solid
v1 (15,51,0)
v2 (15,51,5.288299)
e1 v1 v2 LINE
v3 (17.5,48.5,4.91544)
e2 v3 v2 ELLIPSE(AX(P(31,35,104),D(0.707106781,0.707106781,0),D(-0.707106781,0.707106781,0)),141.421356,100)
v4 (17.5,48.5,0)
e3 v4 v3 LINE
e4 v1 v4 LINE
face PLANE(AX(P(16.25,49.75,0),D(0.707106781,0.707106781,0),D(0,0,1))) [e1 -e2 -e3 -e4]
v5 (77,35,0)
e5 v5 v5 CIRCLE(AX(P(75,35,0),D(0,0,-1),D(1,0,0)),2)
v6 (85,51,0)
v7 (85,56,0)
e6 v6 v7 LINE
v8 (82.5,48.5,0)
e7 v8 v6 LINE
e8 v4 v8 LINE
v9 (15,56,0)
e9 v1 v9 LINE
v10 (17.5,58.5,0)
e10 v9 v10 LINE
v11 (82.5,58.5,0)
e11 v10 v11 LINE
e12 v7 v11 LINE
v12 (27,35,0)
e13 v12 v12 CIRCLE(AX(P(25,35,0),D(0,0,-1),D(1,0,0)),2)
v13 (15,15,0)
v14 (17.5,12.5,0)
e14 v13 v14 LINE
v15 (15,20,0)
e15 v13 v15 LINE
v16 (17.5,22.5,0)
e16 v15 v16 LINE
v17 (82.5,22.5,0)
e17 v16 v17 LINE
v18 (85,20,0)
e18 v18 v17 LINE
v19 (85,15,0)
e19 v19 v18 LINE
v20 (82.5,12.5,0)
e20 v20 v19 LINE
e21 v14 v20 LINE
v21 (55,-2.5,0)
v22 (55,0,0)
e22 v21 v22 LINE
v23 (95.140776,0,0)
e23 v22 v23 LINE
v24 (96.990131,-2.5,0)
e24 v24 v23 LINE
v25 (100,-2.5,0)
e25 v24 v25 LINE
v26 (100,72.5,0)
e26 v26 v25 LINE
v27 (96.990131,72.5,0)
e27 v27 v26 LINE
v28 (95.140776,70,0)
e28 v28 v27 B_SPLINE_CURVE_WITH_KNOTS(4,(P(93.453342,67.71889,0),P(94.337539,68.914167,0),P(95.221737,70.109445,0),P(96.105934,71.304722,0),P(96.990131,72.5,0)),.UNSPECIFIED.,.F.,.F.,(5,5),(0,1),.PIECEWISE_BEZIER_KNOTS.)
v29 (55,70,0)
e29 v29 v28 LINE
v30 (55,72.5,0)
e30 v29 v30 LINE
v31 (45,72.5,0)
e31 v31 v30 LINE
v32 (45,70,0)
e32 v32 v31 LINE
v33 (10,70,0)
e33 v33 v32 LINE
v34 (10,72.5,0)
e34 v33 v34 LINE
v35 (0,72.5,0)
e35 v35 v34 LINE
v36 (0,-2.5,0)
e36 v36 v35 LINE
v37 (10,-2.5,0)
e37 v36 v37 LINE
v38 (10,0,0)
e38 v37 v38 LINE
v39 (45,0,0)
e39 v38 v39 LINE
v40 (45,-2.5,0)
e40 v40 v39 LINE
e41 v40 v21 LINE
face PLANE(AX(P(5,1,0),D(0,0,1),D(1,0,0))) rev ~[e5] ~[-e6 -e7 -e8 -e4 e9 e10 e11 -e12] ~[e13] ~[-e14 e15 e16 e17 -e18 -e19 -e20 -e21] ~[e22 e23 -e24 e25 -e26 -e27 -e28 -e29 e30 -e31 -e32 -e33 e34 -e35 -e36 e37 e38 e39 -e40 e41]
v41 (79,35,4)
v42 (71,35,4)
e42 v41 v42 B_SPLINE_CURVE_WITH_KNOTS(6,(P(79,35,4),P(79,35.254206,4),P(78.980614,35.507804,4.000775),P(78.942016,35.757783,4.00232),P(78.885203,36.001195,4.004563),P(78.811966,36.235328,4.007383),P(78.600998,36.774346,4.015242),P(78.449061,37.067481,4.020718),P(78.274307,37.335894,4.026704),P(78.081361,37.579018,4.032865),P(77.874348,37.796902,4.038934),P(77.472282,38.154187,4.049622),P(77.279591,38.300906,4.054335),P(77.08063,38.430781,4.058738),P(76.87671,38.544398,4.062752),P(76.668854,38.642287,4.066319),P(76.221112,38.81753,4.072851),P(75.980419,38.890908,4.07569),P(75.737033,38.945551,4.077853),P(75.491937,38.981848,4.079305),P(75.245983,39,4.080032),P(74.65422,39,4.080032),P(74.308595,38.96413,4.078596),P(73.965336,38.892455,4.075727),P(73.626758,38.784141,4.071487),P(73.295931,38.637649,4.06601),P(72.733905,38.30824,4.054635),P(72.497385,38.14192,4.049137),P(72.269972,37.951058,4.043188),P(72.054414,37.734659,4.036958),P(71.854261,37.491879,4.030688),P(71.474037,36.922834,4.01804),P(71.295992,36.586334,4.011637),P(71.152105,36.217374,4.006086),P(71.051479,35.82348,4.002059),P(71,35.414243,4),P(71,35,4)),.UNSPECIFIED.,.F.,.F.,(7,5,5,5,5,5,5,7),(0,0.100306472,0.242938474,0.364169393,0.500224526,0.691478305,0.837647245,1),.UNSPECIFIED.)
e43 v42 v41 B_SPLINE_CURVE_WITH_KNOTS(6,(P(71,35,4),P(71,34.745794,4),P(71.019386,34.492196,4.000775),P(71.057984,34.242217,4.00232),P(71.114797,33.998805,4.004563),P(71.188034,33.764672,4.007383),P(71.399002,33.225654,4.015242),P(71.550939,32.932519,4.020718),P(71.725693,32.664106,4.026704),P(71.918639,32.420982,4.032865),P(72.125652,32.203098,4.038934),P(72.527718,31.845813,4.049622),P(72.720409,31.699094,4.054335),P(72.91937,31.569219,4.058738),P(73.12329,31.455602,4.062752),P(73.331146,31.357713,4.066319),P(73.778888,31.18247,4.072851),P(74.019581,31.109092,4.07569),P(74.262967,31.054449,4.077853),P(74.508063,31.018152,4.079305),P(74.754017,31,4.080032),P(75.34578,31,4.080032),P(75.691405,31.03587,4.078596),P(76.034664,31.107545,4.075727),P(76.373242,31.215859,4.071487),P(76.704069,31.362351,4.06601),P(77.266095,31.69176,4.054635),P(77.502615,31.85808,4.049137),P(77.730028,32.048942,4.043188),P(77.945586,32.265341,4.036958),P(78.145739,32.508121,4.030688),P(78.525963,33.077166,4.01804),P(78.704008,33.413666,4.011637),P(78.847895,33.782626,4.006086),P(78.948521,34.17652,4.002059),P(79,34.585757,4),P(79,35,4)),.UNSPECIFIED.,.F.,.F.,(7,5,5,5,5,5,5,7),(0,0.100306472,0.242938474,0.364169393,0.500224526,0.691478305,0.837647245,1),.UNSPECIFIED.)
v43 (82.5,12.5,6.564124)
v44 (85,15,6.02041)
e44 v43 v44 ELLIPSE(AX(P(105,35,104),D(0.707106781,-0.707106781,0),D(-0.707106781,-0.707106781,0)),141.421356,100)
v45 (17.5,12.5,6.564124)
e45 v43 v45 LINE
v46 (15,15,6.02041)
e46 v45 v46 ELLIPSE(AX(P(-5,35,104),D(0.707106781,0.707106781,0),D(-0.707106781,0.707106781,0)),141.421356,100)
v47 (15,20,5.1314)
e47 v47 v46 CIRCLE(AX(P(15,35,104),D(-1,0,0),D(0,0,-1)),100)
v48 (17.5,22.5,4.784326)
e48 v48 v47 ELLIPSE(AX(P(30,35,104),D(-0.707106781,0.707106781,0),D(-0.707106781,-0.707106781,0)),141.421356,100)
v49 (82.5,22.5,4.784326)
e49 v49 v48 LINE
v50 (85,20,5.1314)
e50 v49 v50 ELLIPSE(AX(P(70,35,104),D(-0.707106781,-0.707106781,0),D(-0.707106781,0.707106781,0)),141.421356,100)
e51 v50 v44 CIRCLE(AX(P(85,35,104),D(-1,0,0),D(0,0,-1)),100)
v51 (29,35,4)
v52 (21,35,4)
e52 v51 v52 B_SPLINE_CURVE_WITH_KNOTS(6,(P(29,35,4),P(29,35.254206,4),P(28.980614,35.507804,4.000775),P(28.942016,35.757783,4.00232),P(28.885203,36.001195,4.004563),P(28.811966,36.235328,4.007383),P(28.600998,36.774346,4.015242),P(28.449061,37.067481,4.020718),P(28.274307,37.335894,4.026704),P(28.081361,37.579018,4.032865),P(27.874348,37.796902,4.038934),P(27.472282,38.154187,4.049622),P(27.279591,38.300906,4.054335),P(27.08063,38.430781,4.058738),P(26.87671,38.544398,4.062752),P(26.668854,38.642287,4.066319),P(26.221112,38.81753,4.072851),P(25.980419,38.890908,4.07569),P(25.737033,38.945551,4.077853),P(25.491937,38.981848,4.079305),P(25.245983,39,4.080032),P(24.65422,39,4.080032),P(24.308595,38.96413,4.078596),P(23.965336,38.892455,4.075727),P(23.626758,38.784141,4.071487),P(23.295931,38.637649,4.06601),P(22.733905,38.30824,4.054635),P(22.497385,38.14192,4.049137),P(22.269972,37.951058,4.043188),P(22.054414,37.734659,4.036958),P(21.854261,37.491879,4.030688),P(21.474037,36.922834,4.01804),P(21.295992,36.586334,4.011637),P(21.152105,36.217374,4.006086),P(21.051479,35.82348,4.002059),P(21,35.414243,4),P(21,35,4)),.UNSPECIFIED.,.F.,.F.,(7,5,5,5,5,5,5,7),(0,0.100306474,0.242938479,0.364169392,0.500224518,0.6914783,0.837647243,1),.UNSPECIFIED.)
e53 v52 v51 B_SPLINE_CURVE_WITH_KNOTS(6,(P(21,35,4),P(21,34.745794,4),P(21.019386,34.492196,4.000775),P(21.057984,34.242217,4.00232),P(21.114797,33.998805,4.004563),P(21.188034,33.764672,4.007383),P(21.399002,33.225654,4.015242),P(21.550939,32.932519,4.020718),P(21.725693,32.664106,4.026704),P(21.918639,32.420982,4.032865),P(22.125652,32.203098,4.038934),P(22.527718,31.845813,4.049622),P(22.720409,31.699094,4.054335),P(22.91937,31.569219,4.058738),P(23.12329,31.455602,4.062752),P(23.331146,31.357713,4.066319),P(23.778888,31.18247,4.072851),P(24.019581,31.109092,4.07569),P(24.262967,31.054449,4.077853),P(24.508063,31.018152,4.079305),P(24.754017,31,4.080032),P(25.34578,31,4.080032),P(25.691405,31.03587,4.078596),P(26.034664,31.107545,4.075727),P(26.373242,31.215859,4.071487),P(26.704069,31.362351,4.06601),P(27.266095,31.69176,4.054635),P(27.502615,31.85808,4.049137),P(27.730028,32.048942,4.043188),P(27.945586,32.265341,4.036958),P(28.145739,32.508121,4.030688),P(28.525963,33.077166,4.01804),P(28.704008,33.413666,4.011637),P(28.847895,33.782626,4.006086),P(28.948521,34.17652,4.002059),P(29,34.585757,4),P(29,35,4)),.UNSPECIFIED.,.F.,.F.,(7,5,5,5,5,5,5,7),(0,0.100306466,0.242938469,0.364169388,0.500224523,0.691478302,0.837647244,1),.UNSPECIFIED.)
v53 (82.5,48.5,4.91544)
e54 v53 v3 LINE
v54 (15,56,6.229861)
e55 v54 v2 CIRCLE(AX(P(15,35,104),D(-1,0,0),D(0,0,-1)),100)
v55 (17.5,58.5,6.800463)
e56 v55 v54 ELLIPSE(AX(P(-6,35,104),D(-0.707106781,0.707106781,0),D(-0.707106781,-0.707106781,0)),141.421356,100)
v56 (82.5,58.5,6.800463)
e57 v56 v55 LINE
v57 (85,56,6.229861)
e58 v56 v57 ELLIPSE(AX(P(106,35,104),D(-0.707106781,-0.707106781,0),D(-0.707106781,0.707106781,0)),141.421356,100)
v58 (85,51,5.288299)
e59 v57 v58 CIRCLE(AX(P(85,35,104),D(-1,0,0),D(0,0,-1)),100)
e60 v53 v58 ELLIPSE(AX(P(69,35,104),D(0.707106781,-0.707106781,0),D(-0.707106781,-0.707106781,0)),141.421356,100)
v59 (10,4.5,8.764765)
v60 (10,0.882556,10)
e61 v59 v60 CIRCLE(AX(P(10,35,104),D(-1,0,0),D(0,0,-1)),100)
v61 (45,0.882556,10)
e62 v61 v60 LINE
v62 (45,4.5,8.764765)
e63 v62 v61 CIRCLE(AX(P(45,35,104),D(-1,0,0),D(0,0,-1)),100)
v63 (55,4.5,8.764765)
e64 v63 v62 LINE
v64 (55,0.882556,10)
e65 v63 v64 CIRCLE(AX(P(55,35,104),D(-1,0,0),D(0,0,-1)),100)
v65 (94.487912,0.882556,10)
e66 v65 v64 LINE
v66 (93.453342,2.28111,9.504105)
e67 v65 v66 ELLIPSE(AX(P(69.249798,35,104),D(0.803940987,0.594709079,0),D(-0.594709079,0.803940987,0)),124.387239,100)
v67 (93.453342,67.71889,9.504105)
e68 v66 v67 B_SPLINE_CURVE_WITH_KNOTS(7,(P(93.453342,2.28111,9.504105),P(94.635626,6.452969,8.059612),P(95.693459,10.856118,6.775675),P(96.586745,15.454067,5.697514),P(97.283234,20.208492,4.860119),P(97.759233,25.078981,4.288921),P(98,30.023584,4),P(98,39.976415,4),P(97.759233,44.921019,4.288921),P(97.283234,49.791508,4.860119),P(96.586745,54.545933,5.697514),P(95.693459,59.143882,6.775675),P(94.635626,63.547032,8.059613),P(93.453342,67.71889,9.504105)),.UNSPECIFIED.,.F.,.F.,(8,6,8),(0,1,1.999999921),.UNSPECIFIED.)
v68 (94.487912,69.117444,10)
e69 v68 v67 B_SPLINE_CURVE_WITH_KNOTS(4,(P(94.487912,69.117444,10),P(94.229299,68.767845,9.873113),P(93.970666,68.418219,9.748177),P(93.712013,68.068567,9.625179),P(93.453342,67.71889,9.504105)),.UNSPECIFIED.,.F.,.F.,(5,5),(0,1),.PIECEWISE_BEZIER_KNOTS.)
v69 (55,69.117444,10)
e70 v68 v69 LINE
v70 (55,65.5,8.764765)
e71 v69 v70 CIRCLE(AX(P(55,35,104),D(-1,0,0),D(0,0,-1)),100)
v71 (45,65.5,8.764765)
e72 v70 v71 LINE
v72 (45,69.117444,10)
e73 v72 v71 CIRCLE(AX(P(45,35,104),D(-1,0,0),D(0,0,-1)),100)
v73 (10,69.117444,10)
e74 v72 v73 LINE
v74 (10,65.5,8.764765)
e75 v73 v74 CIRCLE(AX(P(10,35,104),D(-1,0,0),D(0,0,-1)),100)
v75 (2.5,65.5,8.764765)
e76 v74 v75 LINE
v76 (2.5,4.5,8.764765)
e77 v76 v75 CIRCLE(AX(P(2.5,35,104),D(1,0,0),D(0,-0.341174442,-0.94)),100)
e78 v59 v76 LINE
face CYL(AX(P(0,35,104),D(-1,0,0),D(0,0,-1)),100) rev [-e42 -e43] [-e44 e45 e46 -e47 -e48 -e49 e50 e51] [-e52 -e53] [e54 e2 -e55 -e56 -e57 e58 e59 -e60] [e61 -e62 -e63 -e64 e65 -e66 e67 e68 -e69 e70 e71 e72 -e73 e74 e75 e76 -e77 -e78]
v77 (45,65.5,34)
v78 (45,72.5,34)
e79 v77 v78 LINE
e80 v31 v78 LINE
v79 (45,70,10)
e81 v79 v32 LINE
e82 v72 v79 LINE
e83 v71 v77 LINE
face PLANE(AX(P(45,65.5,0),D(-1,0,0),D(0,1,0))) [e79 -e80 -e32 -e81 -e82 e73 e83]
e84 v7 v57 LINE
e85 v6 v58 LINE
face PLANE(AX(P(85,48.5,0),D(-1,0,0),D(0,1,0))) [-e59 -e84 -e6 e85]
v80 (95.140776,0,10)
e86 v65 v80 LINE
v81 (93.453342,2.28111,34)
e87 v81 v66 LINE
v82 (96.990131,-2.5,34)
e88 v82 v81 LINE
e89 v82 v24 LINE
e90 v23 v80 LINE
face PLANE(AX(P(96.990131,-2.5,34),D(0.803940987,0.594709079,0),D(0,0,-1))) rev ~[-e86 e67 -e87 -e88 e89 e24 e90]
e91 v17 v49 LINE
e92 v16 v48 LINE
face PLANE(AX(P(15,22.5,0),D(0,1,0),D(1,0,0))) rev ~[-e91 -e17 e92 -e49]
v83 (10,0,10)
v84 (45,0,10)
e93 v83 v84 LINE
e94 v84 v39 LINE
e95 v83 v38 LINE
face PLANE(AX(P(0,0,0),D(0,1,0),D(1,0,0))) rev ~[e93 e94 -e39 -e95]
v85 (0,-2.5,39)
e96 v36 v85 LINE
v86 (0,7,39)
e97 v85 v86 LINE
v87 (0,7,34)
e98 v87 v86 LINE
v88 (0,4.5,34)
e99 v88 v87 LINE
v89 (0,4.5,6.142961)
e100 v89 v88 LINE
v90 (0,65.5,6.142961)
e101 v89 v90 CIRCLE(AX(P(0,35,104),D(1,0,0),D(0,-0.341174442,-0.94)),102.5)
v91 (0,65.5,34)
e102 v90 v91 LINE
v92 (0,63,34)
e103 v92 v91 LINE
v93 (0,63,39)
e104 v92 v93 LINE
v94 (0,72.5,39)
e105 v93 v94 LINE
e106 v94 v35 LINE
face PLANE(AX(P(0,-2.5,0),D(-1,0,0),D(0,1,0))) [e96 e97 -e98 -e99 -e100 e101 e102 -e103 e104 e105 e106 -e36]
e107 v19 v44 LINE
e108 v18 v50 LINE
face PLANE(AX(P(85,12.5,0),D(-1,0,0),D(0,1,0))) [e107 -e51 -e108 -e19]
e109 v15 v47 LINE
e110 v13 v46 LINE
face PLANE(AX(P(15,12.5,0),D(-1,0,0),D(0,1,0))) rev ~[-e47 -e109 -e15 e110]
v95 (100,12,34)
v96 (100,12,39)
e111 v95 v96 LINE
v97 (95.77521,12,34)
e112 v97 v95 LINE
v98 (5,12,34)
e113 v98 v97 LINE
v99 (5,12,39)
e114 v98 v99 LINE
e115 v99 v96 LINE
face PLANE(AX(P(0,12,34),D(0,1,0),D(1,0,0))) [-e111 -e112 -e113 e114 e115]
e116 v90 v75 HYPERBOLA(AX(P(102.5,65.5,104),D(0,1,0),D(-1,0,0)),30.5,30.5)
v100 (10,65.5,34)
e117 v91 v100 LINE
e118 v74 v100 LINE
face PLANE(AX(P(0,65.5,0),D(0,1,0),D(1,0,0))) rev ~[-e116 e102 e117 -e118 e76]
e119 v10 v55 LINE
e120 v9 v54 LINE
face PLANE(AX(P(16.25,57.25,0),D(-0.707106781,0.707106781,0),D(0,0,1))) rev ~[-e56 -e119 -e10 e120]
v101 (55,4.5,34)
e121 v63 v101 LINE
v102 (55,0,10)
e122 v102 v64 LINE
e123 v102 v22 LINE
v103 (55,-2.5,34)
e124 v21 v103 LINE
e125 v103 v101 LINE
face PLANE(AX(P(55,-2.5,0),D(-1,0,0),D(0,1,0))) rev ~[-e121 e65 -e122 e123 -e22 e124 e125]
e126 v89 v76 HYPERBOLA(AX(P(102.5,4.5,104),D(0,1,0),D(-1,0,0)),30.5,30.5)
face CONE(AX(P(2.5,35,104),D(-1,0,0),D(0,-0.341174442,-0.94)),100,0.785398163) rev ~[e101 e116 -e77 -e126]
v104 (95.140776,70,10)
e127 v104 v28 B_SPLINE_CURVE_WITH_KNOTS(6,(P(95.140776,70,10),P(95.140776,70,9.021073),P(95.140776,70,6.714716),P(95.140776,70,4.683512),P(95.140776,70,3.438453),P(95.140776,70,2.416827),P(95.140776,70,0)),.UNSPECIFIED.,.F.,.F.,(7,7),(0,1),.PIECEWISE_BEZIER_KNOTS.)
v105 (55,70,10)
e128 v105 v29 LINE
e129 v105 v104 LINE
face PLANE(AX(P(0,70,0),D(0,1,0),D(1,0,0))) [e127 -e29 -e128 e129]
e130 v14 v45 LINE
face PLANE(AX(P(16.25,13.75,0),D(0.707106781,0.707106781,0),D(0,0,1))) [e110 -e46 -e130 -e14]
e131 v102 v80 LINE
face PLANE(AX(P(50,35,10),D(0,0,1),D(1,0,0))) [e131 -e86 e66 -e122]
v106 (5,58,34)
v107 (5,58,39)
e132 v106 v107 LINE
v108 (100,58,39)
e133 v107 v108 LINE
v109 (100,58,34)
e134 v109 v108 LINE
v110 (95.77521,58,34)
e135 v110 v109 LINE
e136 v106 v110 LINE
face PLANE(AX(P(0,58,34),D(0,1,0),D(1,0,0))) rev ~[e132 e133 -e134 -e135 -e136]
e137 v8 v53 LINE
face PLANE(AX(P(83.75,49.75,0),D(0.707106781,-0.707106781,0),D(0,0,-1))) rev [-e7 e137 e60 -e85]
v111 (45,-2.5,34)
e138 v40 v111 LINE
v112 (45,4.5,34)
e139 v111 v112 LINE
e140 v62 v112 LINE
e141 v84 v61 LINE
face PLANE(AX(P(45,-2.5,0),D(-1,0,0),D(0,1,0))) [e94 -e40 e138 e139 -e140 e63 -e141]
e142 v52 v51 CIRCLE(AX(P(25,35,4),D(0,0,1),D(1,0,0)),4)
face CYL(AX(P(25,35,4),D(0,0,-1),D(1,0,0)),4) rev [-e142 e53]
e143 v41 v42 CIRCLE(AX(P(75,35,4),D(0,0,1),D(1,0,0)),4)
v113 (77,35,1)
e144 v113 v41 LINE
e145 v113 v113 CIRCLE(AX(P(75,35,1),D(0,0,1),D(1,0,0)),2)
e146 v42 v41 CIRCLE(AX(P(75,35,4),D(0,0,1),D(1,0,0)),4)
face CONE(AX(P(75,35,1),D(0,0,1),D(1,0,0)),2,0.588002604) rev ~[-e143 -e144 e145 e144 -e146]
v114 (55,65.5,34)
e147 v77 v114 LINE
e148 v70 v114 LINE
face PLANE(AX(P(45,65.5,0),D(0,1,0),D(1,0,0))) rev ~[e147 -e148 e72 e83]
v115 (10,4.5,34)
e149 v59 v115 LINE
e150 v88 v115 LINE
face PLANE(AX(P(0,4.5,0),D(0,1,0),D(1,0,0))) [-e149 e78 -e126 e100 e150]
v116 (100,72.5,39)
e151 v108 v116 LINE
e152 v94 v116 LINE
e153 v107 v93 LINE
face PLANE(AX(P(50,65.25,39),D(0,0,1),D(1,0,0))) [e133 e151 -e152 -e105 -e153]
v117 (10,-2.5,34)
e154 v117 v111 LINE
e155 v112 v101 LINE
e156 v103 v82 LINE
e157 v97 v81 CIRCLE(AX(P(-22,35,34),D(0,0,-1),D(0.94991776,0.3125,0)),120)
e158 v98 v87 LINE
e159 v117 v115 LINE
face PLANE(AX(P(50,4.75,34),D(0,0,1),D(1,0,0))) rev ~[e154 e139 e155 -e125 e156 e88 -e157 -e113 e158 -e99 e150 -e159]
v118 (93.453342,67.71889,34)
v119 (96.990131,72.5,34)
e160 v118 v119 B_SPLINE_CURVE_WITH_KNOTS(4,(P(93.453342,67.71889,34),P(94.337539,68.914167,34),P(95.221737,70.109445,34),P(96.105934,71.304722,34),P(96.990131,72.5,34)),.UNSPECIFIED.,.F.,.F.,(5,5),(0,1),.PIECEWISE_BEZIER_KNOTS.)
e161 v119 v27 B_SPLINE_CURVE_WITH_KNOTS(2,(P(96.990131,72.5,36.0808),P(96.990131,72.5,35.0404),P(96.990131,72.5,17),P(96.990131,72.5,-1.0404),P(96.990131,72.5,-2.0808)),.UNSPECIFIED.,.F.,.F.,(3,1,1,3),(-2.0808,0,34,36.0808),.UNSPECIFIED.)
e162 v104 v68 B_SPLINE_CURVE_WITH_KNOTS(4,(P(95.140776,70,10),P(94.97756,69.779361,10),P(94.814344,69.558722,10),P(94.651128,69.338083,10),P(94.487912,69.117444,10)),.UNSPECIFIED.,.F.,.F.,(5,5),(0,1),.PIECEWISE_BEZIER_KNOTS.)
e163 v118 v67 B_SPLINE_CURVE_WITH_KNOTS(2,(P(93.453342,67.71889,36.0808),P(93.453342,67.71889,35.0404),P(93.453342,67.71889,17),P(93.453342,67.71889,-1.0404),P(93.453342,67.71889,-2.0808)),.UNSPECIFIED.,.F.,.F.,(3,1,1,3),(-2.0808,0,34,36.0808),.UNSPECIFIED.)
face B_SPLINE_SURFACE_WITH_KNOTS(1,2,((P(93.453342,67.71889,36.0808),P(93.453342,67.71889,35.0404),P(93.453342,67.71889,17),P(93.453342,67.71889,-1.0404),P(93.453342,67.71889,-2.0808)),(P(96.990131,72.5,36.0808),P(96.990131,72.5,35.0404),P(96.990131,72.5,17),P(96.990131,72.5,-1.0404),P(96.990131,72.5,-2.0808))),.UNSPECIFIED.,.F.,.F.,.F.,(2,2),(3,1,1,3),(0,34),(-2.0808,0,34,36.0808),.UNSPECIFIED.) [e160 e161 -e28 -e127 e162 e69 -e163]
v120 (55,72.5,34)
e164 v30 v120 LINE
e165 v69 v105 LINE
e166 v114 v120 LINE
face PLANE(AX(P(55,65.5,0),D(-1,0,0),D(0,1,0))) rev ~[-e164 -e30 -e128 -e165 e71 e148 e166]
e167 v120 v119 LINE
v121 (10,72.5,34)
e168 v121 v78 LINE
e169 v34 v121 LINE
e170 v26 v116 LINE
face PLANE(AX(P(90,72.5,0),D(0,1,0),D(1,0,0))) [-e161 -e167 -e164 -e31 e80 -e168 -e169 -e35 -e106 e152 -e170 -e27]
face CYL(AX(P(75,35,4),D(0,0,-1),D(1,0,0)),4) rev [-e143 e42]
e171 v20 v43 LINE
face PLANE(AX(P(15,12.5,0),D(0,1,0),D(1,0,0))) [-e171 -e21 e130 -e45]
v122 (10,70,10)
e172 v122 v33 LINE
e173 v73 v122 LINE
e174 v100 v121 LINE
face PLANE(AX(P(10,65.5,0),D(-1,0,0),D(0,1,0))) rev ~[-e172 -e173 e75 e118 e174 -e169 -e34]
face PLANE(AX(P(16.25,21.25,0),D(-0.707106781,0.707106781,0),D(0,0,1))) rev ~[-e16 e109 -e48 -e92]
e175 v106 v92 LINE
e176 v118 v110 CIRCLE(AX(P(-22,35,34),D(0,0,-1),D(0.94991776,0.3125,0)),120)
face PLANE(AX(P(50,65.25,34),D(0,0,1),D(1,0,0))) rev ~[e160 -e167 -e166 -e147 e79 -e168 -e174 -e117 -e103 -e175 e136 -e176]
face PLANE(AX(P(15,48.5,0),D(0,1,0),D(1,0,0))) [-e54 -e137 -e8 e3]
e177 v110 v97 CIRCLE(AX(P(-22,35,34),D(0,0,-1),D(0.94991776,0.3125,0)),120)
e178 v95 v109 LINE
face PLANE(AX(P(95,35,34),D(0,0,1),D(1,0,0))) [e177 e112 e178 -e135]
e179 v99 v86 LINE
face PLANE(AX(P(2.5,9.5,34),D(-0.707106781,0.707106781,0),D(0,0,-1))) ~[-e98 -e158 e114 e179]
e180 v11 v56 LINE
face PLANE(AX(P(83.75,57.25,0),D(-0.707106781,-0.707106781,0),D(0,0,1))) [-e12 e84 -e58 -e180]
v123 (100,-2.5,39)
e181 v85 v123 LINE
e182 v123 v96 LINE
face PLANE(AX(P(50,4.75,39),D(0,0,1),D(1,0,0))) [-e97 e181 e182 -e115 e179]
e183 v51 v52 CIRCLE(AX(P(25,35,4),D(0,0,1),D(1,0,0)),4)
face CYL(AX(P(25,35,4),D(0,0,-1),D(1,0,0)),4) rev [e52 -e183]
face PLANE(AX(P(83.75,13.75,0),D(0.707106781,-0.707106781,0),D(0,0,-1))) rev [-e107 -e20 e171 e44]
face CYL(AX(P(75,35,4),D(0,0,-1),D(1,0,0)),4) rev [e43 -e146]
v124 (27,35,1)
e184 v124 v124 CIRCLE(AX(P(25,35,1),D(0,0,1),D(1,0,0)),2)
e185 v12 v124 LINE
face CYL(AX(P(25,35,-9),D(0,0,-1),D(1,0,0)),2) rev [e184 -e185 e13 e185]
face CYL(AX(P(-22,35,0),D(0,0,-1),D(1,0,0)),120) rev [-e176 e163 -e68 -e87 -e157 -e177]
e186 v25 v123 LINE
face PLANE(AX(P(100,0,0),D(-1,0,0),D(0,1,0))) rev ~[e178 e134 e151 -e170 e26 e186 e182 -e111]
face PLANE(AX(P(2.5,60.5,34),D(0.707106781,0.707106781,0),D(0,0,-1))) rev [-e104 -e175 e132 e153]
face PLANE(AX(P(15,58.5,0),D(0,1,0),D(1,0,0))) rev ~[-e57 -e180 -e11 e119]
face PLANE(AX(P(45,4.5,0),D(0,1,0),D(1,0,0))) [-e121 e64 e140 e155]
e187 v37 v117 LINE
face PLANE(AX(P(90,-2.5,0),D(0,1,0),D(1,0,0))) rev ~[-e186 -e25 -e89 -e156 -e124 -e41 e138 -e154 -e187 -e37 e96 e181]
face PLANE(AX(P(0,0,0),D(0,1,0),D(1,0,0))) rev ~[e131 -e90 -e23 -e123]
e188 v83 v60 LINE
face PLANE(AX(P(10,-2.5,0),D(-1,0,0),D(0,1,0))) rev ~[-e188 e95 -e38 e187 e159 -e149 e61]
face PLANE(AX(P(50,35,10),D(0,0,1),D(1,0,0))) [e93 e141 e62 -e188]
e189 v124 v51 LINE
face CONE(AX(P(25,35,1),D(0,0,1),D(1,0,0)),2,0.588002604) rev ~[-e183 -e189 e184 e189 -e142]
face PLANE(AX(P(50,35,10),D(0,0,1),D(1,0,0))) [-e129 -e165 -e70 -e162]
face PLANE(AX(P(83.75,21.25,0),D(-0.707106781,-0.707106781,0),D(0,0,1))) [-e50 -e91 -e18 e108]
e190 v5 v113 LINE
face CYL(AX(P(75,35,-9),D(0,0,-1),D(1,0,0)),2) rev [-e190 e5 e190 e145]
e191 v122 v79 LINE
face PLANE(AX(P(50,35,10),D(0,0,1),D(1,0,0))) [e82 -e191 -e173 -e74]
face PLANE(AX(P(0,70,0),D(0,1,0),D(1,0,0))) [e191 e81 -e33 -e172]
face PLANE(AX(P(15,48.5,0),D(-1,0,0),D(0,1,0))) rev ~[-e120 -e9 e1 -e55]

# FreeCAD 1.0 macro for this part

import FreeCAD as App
import Part
import Sketcher

V = App.Vector
Q = App.Units.Quantity


def edges_at(feature, points):
    """Names of the edges that pass closest to the given points."""
    edges = feature.Shape.Edges
    near = lambda p: min(range(len(edges)), key=lambda i: edges[i].distToShape(Part.Vertex(*p))[0])
    return sorted({f"Edge{near(p) + 1}" for p in points})


def add_polygon(sketch, points):
    """Adds a closed chain of lines whose ends are joined by coincident constraints."""
    first, n = sketch.GeometryCount, len(points)
    for a, b in zip(points, points[1:] + points[:1]):
        sketch.addGeometry(Part.LineSegment(App.Vector(*a, 0), App.Vector(*b, 0)), False)
    for i in range(n):
        sketch.addConstraint(Sketcher.Constraint("Coincident", first + i, 2, first + (i + 1) % n, 1))

doc = App.newDocument("Part")
body = doc.addObject("PartDesign::Body", "Body")

# Sketch on XY plane
sketch1 = doc.addObject("Sketcher::SketchObject", "Sketch")
body.addObject(sketch1)
sketch1.AttachmentSupport = (doc.XY_Plane, [""])
sketch1.MapMode = "FlatFace"
sketch1.addGeometry(Part.Circle(V(-22, 35, 0), V(0, 0, 1), 120), False)
sketch1.addConstraint([
    Sketcher.Constraint("Diameter", 0, Q("240 mm")),
    Sketcher.Constraint("DistanceX", 0, 3, -1, 1, Q("22 mm")),
    Sketcher.Constraint("DistanceY", -1, 1, 0, 3, Q("35 mm")),
])
pad1 = doc.addObject("PartDesign::Pad", "Pad")
body.addObject(pad1)
pad1.Profile = sketch1
pad1.Length = 40
body2 = doc.addObject("PartDesign::Body", "Body001")

# Sketch on XY plane
sketch2 = doc.addObject("Sketcher::SketchObject", "Sketch001")
body2.addObject(sketch2)
sketch2.AttachmentSupport = (doc.getObject("XY_Plane001"), [""])
sketch2.MapMode = "FlatFace"
add_polygon(sketch2, [(90, 72.5), (90, -2.5), (100, -2.5), (100, 72.5)])  # lines 0-3
sketch2.addConstraint([
    Sketcher.Constraint("Vertical", 0),
    Sketcher.Constraint("Horizontal", 1),
    Sketcher.Constraint("Vertical", 2),
    Sketcher.Constraint("Horizontal", 3),
    Sketcher.Constraint("DistanceX", 1, 1, 1, 2, Q("10 mm")),
    Sketcher.Constraint("DistanceY", 0, 2, 0, 1, Q("75 mm")),
    Sketcher.Constraint("DistanceX", -1, 1, 0, 2, Q("90 mm")),
    Sketcher.Constraint("DistanceY", 0, 2, -1, 1, Q("2.5 mm")),
])
pad2 = doc.addObject("PartDesign::Pad", "Pad001")
body2.addObject(pad2)
pad2.Profile = sketch2
pad2.Length = 34
doc.recompute()

boolean = doc.addObject("PartDesign::Boolean", "Boolean")
body2.addObject(boolean)
boolean.Type = "Cut"
boolean.addObjects([body])
doc.recompute()

chamfer = doc.addObject("PartDesign::Chamfer", "Chamfer")
body2.addObject(chamfer)
chamfer.Base = (boolean, edges_at(boolean, [(91.99, -2.5, 17), (91.99, 72.5, 17)]))
chamfer.Size = 5
body3 = doc.addObject("PartDesign::Body", "Body002")

# Sketch on XY plane
sketch3 = doc.addObject("Sketcher::SketchObject", "Sketch002")
body3.addObject(sketch3)
sketch3.AttachmentSupport = (doc.getObject("XY_Plane002"), [""])
sketch3.MapMode = "FlatFace"
add_polygon(sketch3, [(0, 10), (0, 0), (70, 0), (70, 10)])  # lines 0-3
sketch3.addConstraint([
    Sketcher.Constraint("Vertical", 0),
    Sketcher.Constraint("Horizontal", 1),
    Sketcher.Constraint("Vertical", 2),
    Sketcher.Constraint("Horizontal", 3),
    Sketcher.Constraint("Coincident", 0, 2, -1, 1),
    Sketcher.Constraint("DistanceX", 1, 1, 1, 2, Q("70 mm")),
    Sketcher.Constraint("DistanceY", 0, 2, 0, 1, Q("10 mm")),
])
pad3 = doc.addObject("PartDesign::Pad", "Pad002")
body3.addObject(pad3)
pad3.Profile = sketch3
pad3.Length = 10
doc.recompute()

chamfer2 = doc.addObject("PartDesign::Chamfer", "Chamfer001")
body3.addObject(chamfer2)
chamfer2.Base = (pad3, edges_at(pad3, [
    (0, 0, 5),
    (0, 10, 5),
    (70, 0, 5),
    (70, 10, 5),
]))
chamfer2.Size = 2.5
body4 = doc.addObject("PartDesign::Body", "Body003")
doc.recompute()

body3.Placement = App.Placement(V(15, 12.5, 0), App.Rotation(V(0, 0, 1), 0))
boolean2 = doc.addObject("PartDesign::Boolean", "Boolean001")
body4.addObject(boolean2)
boolean2.Type = "Fuse"
boolean2.addObjects([body3])
body5 = doc.addObject("PartDesign::Body", "Body004")

# Sketch on XY plane
sketch4 = doc.addObject("Sketcher::SketchObject", "Sketch003")
body5.addObject(sketch4)
sketch4.AttachmentSupport = (doc.getObject("XY_Plane004"), [""])
sketch4.MapMode = "FlatFace"
add_polygon(sketch4, [(0, 10), (0, 0), (70, 0), (70, 10)])  # lines 0-3
sketch4.addConstraint([
    Sketcher.Constraint("Vertical", 0),
    Sketcher.Constraint("Horizontal", 1),
    Sketcher.Constraint("Vertical", 2),
    Sketcher.Constraint("Horizontal", 3),
    Sketcher.Constraint("Coincident", 0, 2, -1, 1),
    Sketcher.Constraint("DistanceX", 1, 1, 1, 2, Q("70 mm")),
    Sketcher.Constraint("DistanceY", 0, 2, 0, 1, Q("10 mm")),
])
pad4 = doc.addObject("PartDesign::Pad", "Pad003")
body5.addObject(pad4)
pad4.Profile = sketch4
pad4.Length = 10
doc.recompute()

chamfer3 = doc.addObject("PartDesign::Chamfer", "Chamfer002")
body5.addObject(chamfer3)
chamfer3.Base = (pad4, edges_at(pad4, [
    (0, 0, 5),
    (0, 10, 5),
    (70, 0, 5),
    (70, 10, 5),
]))
chamfer3.Size = 2.5
body6 = doc.addObject("PartDesign::Body", "Body005")
body6.AllowCompound = True
doc.recompute()

body5.Placement = App.Placement(V(15, 48.5, 0), App.Rotation(V(0, 0, 1), 0))
boolean3 = doc.addObject("PartDesign::Boolean", "Boolean002")
body6.addObject(boolean3)
boolean3.Type = "Fuse"
boolean3.addObjects([body5])
doc.recompute()

boolean4 = doc.addObject("PartDesign::Boolean", "Boolean003")
body6.addObject(boolean4)
boolean4.Type = "Fuse"
boolean4.addObjects([body4])
body7 = doc.addObject("PartDesign::Body", "Body006")

# Sketch on XZ plane
sketch5 = doc.addObject("Sketcher::SketchObject", "Sketch004")
body7.addObject(sketch5)
sketch5.AttachmentSupport = (doc.getObject("XZ_Plane006"), [""])
sketch5.MapMode = "FlatFace"
sketch5.AttachmentOffset = App.Placement(V(0, 0, -35), App.Rotation())
add_polygon(sketch5, [(0, 10), (2, 10), (4, 13), (0, 13)])  # lines 0-3
sketch5.addConstraint([
    Sketcher.Constraint("Horizontal", 0),
    Sketcher.Constraint("Horizontal", 2),
    Sketcher.Constraint("Vertical", 3),
    Sketcher.Constraint("PointOnObject", 2, 2, -2),
    Sketcher.Constraint("DistanceX", 0, 1, 0, 2, Q("2 mm")),
    Sketcher.Constraint("DistanceX", 2, 2, 2, 1, Q("4 mm")),
    Sketcher.Constraint("DistanceY", 3, 2, 3, 1, Q("3 mm")),
    Sketcher.Constraint("DistanceY", -1, 1, 0, 2, Q("10 mm")),
])
revolution = doc.addObject("PartDesign::Revolution", "Revolution")
body7.addObject(revolution)
revolution.Profile = sketch5
revolution.ReferenceAxis = (sketch5, ["V_Axis"])
revolution.Angle = 360
body8 = doc.addObject("PartDesign::Body", "Body007")

# Sketch on XY plane
sketch6 = doc.addObject("Sketcher::SketchObject", "Sketch005")
body8.addObject(sketch6)
sketch6.AttachmentSupport = (doc.getObject("XY_Plane007"), [""])
sketch6.MapMode = "FlatFace"
sketch6.addGeometry(Part.Circle(V(0, 35, 0), V(0, 0, 1), 2), False)
sketch6.addConstraint([
    Sketcher.Constraint("PointOnObject", 0, 3, -2),
    Sketcher.Constraint("Diameter", 0, Q("4 mm")),
    Sketcher.Constraint("DistanceY", -1, 1, 0, 3, Q("35 mm")),
])
pad5 = doc.addObject("PartDesign::Pad", "Pad004")
body8.addObject(pad5)
pad5.Profile = sketch6
pad5.Length = 10
body9 = doc.addObject("PartDesign::Body", "Body008")

# Sketch on XY plane
sketch7 = doc.addObject("Sketcher::SketchObject", "Sketch006")
body9.addObject(sketch7)
sketch7.AttachmentSupport = (doc.getObject("XY_Plane008"), [""])
sketch7.MapMode = "FlatFace"
sketch7.AttachmentOffset = App.Placement(V(0, 0, 13), App.Rotation())
sketch7.addGeometry(Part.Circle(V(0, 35, 0), V(0, 0, 1), 4), False)
sketch7.addConstraint([
    Sketcher.Constraint("PointOnObject", 0, 3, -2),
    Sketcher.Constraint("Diameter", 0, Q("8 mm")),
    Sketcher.Constraint("DistanceY", -1, 1, 0, 3, Q("35 mm")),
])
pad6 = doc.addObject("PartDesign::Pad", "Pad005")
body9.addObject(pad6)
pad6.Profile = sketch7
pad6.Length = 10
doc.recompute()

boolean5 = doc.addObject("PartDesign::Boolean", "Boolean004")
body9.addObject(boolean5)
boolean5.Type = "Fuse"
boolean5.addObjects([body7])
doc.recompute()

boolean6 = doc.addObject("PartDesign::Boolean", "Boolean005")
body9.addObject(boolean6)
boolean6.Type = "Fuse"
boolean6.addObjects([body8])
body10 = doc.addObject("PartDesign::Body", "Body009")
doc.recompute()

body9.Placement = App.Placement(V(75, 0, -9), App.Rotation(V(0, 0, 1), 0))
boolean7 = doc.addObject("PartDesign::Boolean", "Boolean006")
body10.addObject(boolean7)
boolean7.Type = "Fuse"
boolean7.addObjects([body9])
body11 = doc.addObject("PartDesign::Body", "Body010")

# Sketch on XZ plane
sketch8 = doc.addObject("Sketcher::SketchObject", "Sketch007")
body11.addObject(sketch8)
sketch8.AttachmentSupport = (doc.getObject("XZ_Plane010"), [""])
sketch8.MapMode = "FlatFace"
sketch8.AttachmentOffset = App.Placement(V(0, 0, -35), App.Rotation())
add_polygon(sketch8, [(0, 10), (2, 10), (4, 13), (0, 13)])  # lines 0-3
sketch8.addConstraint([
    Sketcher.Constraint("Horizontal", 0),
    Sketcher.Constraint("Horizontal", 2),
    Sketcher.Constraint("Vertical", 3),
    Sketcher.Constraint("PointOnObject", 2, 2, -2),
    Sketcher.Constraint("DistanceX", 0, 1, 0, 2, Q("2 mm")),
    Sketcher.Constraint("DistanceX", 2, 2, 2, 1, Q("4 mm")),
    Sketcher.Constraint("DistanceY", 3, 2, 3, 1, Q("3 mm")),
    Sketcher.Constraint("DistanceY", -1, 1, 0, 2, Q("10 mm")),
])
revolution2 = doc.addObject("PartDesign::Revolution", "Revolution001")
body11.addObject(revolution2)
revolution2.Profile = sketch8
revolution2.ReferenceAxis = (sketch8, ["V_Axis"])
revolution2.Angle = 360
body12 = doc.addObject("PartDesign::Body", "Body011")

# Sketch on XY plane
sketch9 = doc.addObject("Sketcher::SketchObject", "Sketch008")
body12.addObject(sketch9)
sketch9.AttachmentSupport = (doc.getObject("XY_Plane011"), [""])
sketch9.MapMode = "FlatFace"
sketch9.addGeometry(Part.Circle(V(0, 35, 0), V(0, 0, 1), 2), False)
sketch9.addConstraint([
    Sketcher.Constraint("PointOnObject", 0, 3, -2),
    Sketcher.Constraint("Diameter", 0, Q("4 mm")),
    Sketcher.Constraint("DistanceY", -1, 1, 0, 3, Q("35 mm")),
])
pad7 = doc.addObject("PartDesign::Pad", "Pad006")
body12.addObject(pad7)
pad7.Profile = sketch9
pad7.Length = 10
body13 = doc.addObject("PartDesign::Body", "Body012")

# Sketch on XY plane
sketch10 = doc.addObject("Sketcher::SketchObject", "Sketch009")
body13.addObject(sketch10)
sketch10.AttachmentSupport = (doc.getObject("XY_Plane012"), [""])
sketch10.MapMode = "FlatFace"
sketch10.AttachmentOffset = App.Placement(V(0, 0, 13), App.Rotation())
sketch10.addGeometry(Part.Circle(V(0, 35, 0), V(0, 0, 1), 4), False)
sketch10.addConstraint([
    Sketcher.Constraint("PointOnObject", 0, 3, -2),
    Sketcher.Constraint("Diameter", 0, Q("8 mm")),
    Sketcher.Constraint("DistanceY", -1, 1, 0, 3, Q("35 mm")),
])
pad8 = doc.addObject("PartDesign::Pad", "Pad007")
body13.addObject(pad8)
pad8.Profile = sketch10
pad8.Length = 10
doc.recompute()

boolean8 = doc.addObject("PartDesign::Boolean", "Boolean007")
body13.addObject(boolean8)
boolean8.Type = "Fuse"
boolean8.addObjects([body11])
doc.recompute()

boolean9 = doc.addObject("PartDesign::Boolean", "Boolean008")
body13.addObject(boolean9)
boolean9.Type = "Fuse"
boolean9.addObjects([body12])
body14 = doc.addObject("PartDesign::Body", "Body013")
body14.AllowCompound = True
doc.recompute()

body13.Placement = App.Placement(V(25, 0, -9), App.Rotation(V(0, 0, 1), 0))
boolean10 = doc.addObject("PartDesign::Boolean", "Boolean009")
body14.addObject(boolean10)
boolean10.Type = "Fuse"
boolean10.addObjects([body13])
doc.recompute()

boolean11 = doc.addObject("PartDesign::Boolean", "Boolean010")
body14.addObject(boolean11)
boolean11.Type = "Fuse"
boolean11.addObjects([body10])
body15 = doc.addObject("PartDesign::Body", "Body014")

# Sketch on YZ plane
sketch11 = doc.addObject("Sketcher::SketchObject", "Sketch010")
body15.addObject(sketch11)
sketch11.AttachmentSupport = (doc.getObject("YZ_Plane014"), [""])
sketch11.MapMode = "FlatFace"
sketch11.addGeometry(Part.Circle(V(35, 104, 0), V(0, 0, 1), 100), False)
sketch11.addConstraint([
    Sketcher.Constraint("Diameter", 0, Q("200 mm")),
    Sketcher.Constraint("DistanceX", -1, 1, 0, 3, Q("35 mm")),
    Sketcher.Constraint("DistanceY", -1, 1, 0, 3, Q("104 mm")),
])
pad9 = doc.addObject("PartDesign::Pad", "Pad008")
body15.addObject(pad9)
pad9.Profile = sketch11
pad9.Length = 100
body16 = doc.addObject("PartDesign::Body", "Body015")

# Sketch on XY plane
sketch12 = doc.addObject("Sketcher::SketchObject", "Sketch011")
body16.addObject(sketch12)
sketch12.AttachmentSupport = (doc.getObject("XY_Plane015"), [""])
sketch12.MapMode = "FlatFace"
add_polygon(sketch12, [(0, 70), (0, 0), (100, 0), (100, 70)])  # lines 0-3
sketch12.addConstraint([
    Sketcher.Constraint("Vertical", 0),
    Sketcher.Constraint("Horizontal", 1),
    Sketcher.Constraint("Vertical", 2),
    Sketcher.Constraint("Horizontal", 3),
    Sketcher.Constraint("Coincident", 0, 2, -1, 1),
    Sketcher.Constraint("DistanceX", 1, 1, 1, 2, Q("100 mm")),
    Sketcher.Constraint("DistanceY", 0, 2, 0, 1, Q("70 mm")),
])
pad10 = doc.addObject("PartDesign::Pad", "Pad009")
body16.addObject(pad10)
pad10.Profile = sketch12
pad10.Length = 10
doc.recompute()

boolean12 = doc.addObject("PartDesign::Boolean", "Boolean011")
body16.addObject(boolean12)
boolean12.Type = "Cut"
boolean12.addObjects([body15])
doc.recompute()

boolean13 = doc.addObject("PartDesign::Boolean", "Boolean012")
body16.addObject(boolean13)
boolean13.Type = "Cut"
boolean13.addObjects([body14])
doc.recompute()

boolean14 = doc.addObject("PartDesign::Boolean", "Boolean013")
body16.addObject(boolean14)
boolean14.Type = "Cut"
boolean14.addObjects([body6])
doc.recompute()

chamfer4 = doc.addObject("PartDesign::Chamfer", "Chamfer003")
body16.addObject(chamfer4)
chamfer4.Base = (boolean14, edges_at(boolean14, [(0, 35, 4), (0, 35, 4)]))
chamfer4.Size = 2.5
body17 = doc.addObject("PartDesign::Body", "Body016")

# Sketch on XY plane
sketch13 = doc.addObject("Sketcher::SketchObject", "Sketch012")
body17.addObject(sketch13)
sketch13.AttachmentSupport = (doc.getObject("XY_Plane016"), [""])
sketch13.MapMode = "FlatFace"
add_polygon(sketch13, [(0, 72.5), (0, 65.5), (10, 65.5), (10, 72.5)])  # lines 0-3
sketch13.addConstraint([
    Sketcher.Constraint("Vertical", 0),
    Sketcher.Constraint("Horizontal", 1),
    Sketcher.Constraint("Vertical", 2),
    Sketcher.Constraint("Horizontal", 3),
    Sketcher.Constraint("PointOnObject", 0, 2, -2),
    Sketcher.Constraint("DistanceX", 1, 1, 1, 2, Q("10 mm")),
    Sketcher.Constraint("DistanceY", 0, 2, 0, 1, Q("7 mm")),
    Sketcher.Constraint("DistanceY", -1, 1, 0, 2, Q("65.5 mm")),
])
pad11 = doc.addObject("PartDesign::Pad", "Pad010")
body17.addObject(pad11)
pad11.Profile = sketch13
pad11.Length = 34
body18 = doc.addObject("PartDesign::Body", "Body017")

# Sketch on XY plane
sketch14 = doc.addObject("Sketcher::SketchObject", "Sketch013")
body18.addObject(sketch14)
sketch14.AttachmentSupport = (doc.getObject("XY_Plane017"), [""])
sketch14.MapMode = "FlatFace"
sketch14.AttachmentOffset = App.Placement(V(0, 0, 34), App.Rotation())
add_polygon(sketch14, [(0, 72.5), (0, 58), (100, 58), (100, 72.5)])  # lines 0-3
sketch14.addConstraint([
    Sketcher.Constraint("Vertical", 0),
    Sketcher.Constraint("Horizontal", 1),
    Sketcher.Constraint("Vertical", 2),
    Sketcher.Constraint("Horizontal", 3),
    Sketcher.Constraint("PointOnObject", 0, 2, -2),
    Sketcher.Constraint("DistanceX", 1, 1, 1, 2, Q("100 mm")),
    Sketcher.Constraint("DistanceY", 0, 2, 0, 1, Q("14.5 mm")),
    Sketcher.Constraint("DistanceY", -1, 1, 0, 2, Q("58 mm")),
])
pad12 = doc.addObject("PartDesign::Pad", "Pad011")
body18.addObject(pad12)
pad12.Profile = sketch14
pad12.Length = 5
body19 = doc.addObject("PartDesign::Body", "Body018")

# Sketch on XY plane
sketch15 = doc.addObject("Sketcher::SketchObject", "Sketch014")
body19.addObject(sketch15)
sketch15.AttachmentSupport = (doc.getObject("XY_Plane018"), [""])
sketch15.MapMode = "FlatFace"
add_polygon(sketch15, [(45, 72.5), (45, 65.5), (55, 65.5), (55, 72.5)])  # lines 0-3
sketch15.addConstraint([
    Sketcher.Constraint("Vertical", 0),
    Sketcher.Constraint("Horizontal", 1),
    Sketcher.Constraint("Vertical", 2),
    Sketcher.Constraint("Horizontal", 3),
    Sketcher.Constraint("DistanceX", 1, 1, 1, 2, Q("10 mm")),
    Sketcher.Constraint("DistanceY", 0, 2, 0, 1, Q("7 mm")),
    Sketcher.Constraint("DistanceX", -1, 1, 0, 2, Q("45 mm")),
    Sketcher.Constraint("DistanceY", -1, 1, 0, 2, Q("65.5 mm")),
])
pad13 = doc.addObject("PartDesign::Pad", "Pad012")
body19.addObject(pad13)
pad13.Profile = sketch15
pad13.Length = 34
body20 = doc.addObject("PartDesign::Body", "Body019")

# Sketch on XY plane
sketch16 = doc.addObject("Sketcher::SketchObject", "Sketch015")
body20.addObject(sketch16)
sketch16.AttachmentSupport = (doc.getObject("XY_Plane019"), [""])
sketch16.MapMode = "FlatFace"
add_polygon(sketch16, [(0, 4.5), (0, -2.5), (10, -2.5), (10, 4.5)])  # lines 0-3
sketch16.addConstraint([
    Sketcher.Constraint("Vertical", 0),
    Sketcher.Constraint("Horizontal", 1),
    Sketcher.Constraint("Vertical", 2),
    Sketcher.Constraint("Horizontal", 3),
    Sketcher.Constraint("PointOnObject", 0, 2, -2),
    Sketcher.Constraint("DistanceX", 1, 1, 1, 2, Q("10 mm")),
    Sketcher.Constraint("DistanceY", 0, 2, 0, 1, Q("7 mm")),
    Sketcher.Constraint("DistanceY", 0, 2, -1, 1, Q("2.5 mm")),
])
pad14 = doc.addObject("PartDesign::Pad", "Pad013")
body20.addObject(pad14)
pad14.Profile = sketch16
pad14.Length = 34
body21 = doc.addObject("PartDesign::Body", "Body020")

# Sketch on XY plane
sketch17 = doc.addObject("Sketcher::SketchObject", "Sketch016")
body21.addObject(sketch17)
sketch17.AttachmentSupport = (doc.getObject("XY_Plane020"), [""])
sketch17.MapMode = "FlatFace"
add_polygon(sketch17, [(45, 4.5), (45, -2.5), (55, -2.5), (55, 4.5)])  # lines 0-3
sketch17.addConstraint([
    Sketcher.Constraint("Vertical", 0),
    Sketcher.Constraint("Horizontal", 1),
    Sketcher.Constraint("Vertical", 2),
    Sketcher.Constraint("Horizontal", 3),
    Sketcher.Constraint("DistanceX", 1, 1, 1, 2, Q("10 mm")),
    Sketcher.Constraint("DistanceY", 0, 2, 0, 1, Q("7 mm")),
    Sketcher.Constraint("DistanceX", -1, 1, 0, 2, Q("45 mm")),
    Sketcher.Constraint("DistanceY", 0, 2, -1, 1, Q("2.5 mm")),
])
pad15 = doc.addObject("PartDesign::Pad", "Pad014")
body21.addObject(pad15)
pad15.Profile = sketch17
pad15.Length = 34
body22 = doc.addObject("PartDesign::Body", "Body021")
body22.AllowCompound = True

# Sketch on XY plane
sketch18 = doc.addObject("Sketcher::SketchObject", "Sketch017")
body22.addObject(sketch18)
sketch18.AttachmentSupport = (doc.getObject("XY_Plane021"), [""])
sketch18.MapMode = "FlatFace"
sketch18.AttachmentOffset = App.Placement(V(0, 0, 34), App.Rotation())
add_polygon(sketch18, [(0, 12), (0, -2.5), (100, -2.5), (100, 12)])  # lines 0-3
sketch18.addConstraint([
    Sketcher.Constraint("Vertical", 0),
    Sketcher.Constraint("Horizontal", 1),
    Sketcher.Constraint("Vertical", 2),
    Sketcher.Constraint("Horizontal", 3),
    Sketcher.Constraint("PointOnObject", 0, 2, -2),
    Sketcher.Constraint("DistanceX", 1, 1, 1, 2, Q("100 mm")),
    Sketcher.Constraint("DistanceY", 0, 2, 0, 1, Q("14.5 mm")),
    Sketcher.Constraint("DistanceY", -1, 1, 2, 2, Q("12 mm")),
])
pad16 = doc.addObject("PartDesign::Pad", "Pad015")
body22.addObject(pad16)
pad16.Profile = sketch18
pad16.Length = 5
doc.recompute()

boolean15 = doc.addObject("PartDesign::Boolean", "Boolean014")
body22.addObject(boolean15)
boolean15.Type = "Fuse"
boolean15.addObjects([body17])
doc.recompute()

boolean16 = doc.addObject("PartDesign::Boolean", "Boolean015")
body22.addObject(boolean16)
boolean16.Type = "Fuse"
boolean16.addObjects([body18])
doc.recompute()

boolean17 = doc.addObject("PartDesign::Boolean", "Boolean016")
body22.addObject(boolean17)
boolean17.Type = "Fuse"
boolean17.addObjects([body19])
doc.recompute()

boolean18 = doc.addObject("PartDesign::Boolean", "Boolean017")
body22.addObject(boolean18)
boolean18.Type = "Fuse"
boolean18.addObjects([body20])
doc.recompute()

boolean19 = doc.addObject("PartDesign::Boolean", "Boolean018")
body22.addObject(boolean19)
boolean19.Type = "Fuse"
boolean19.addObjects([body21])
doc.recompute()

boolean20 = doc.addObject("PartDesign::Boolean", "Boolean019")
body22.addObject(boolean20)
boolean20.Type = "Fuse"
boolean20.addObjects([body2])
doc.recompute()

boolean21 = doc.addObject("PartDesign::Boolean", "Boolean020")
body22.addObject(boolean21)
boolean21.Type = "Fuse"
boolean21.addObjects([body16])
doc.recompute()

chamfer5 = doc.addObject("PartDesign::Chamfer", "Chamfer004")
body22.addObject(chamfer5)
chamfer5.Base = (boolean21, edges_at(boolean21, [(0, 12, 36.5), (0, 58, 36.5)]))
chamfer5.Size = 5

doc.recompute()
